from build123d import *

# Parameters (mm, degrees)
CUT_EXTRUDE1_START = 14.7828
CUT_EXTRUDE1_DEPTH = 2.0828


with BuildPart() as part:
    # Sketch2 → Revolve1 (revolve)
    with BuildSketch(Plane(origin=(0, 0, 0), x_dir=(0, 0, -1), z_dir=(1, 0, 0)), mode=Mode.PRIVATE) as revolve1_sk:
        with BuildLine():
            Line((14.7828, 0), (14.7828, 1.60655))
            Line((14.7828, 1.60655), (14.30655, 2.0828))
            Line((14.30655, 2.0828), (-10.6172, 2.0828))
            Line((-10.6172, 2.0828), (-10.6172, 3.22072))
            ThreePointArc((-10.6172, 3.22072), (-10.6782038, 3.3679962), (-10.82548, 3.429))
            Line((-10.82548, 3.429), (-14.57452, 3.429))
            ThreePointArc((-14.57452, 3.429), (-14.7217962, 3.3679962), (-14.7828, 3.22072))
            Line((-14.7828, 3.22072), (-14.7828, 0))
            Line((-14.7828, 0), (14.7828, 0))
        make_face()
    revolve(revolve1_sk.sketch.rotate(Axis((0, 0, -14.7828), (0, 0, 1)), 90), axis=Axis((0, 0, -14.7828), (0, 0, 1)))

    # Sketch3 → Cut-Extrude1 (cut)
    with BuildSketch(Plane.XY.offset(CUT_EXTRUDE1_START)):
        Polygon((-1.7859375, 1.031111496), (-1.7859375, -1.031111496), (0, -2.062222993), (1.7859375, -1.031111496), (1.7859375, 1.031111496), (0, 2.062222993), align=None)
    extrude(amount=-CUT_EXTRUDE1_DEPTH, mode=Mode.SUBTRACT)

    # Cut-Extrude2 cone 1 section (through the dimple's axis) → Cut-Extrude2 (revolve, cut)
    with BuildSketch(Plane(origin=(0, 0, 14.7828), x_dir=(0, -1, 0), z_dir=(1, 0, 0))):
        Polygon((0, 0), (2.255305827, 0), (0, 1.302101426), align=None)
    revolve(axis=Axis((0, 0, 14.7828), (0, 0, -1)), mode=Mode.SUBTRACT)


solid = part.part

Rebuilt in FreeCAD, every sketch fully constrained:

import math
import FreeCAD as App
import Part
import Sketcher
Q = App.Units.Quantity

doc = App.newDocument("Part")
body = doc.addObject("PartDesign::Body", "Body")

sketch1 = doc.addObject("Sketcher::SketchObject", "Sketch")
body.addObject(sketch1)
sketch1.AttachmentSupport = (doc.YZ_Plane, [""])
sketch1.MapMode = "FlatFace"
sketch1.addGeometry(Part.LineSegment(App.Vector(0, -14.78, 0), App.Vector(1.61, -14.78, 0)), False)
sketch1.addGeometry(Part.LineSegment(App.Vector(1.61, -14.78, 0), App.Vector(2.08, -14.31, 0)), False)
sketch1.addGeometry(Part.LineSegment(App.Vector(2.08, -14.31, 0), App.Vector(2.08, 10.62, 0)), False)
sketch1.addGeometry(Part.LineSegment(App.Vector(2.08, 10.62, 0), App.Vector(3.22, 10.62, 0)), False)
sketch1.addGeometry(Part.ArcOfCircle(Part.Circle(App.Vector(3.22, 10.83, 0), App.Vector(0, 0, 1), 0.21), math.radians(-90), math.radians(0)), False)
sketch1.addGeometry(Part.LineSegment(App.Vector(3.43, 10.83, 0), App.Vector(3.43, 14.57, 0)), False)
sketch1.addGeometry(Part.ArcOfCircle(Part.Circle(App.Vector(3.22, 14.57, 0), App.Vector(0, 0, 1), 0.21), math.radians(0), math.radians(90)), False)
sketch1.addGeometry(Part.LineSegment(App.Vector(3.22, 14.78, 0), App.Vector(0, 14.78, 0)), False)
sketch1.addGeometry(Part.LineSegment(App.Vector(0, 14.78, 0), App.Vector(0, -14.78, 0)), False)
sketch1.addConstraint(Sketcher.Constraint("Coincident", 0, 2, 1, 1))
sketch1.addConstraint(Sketcher.Constraint("Coincident", 1, 2, 2, 1))
sketch1.addConstraint(Sketcher.Constraint("Coincident", 2, 2, 3, 1))
sketch1.addConstraint(Sketcher.Constraint("Tangent", 3, 2, 4, 1))
sketch1.addConstraint(Sketcher.Constraint("Tangent", 4, 2, 5, 1))
sketch1.addConstraint(Sketcher.Constraint("Tangent", 5, 2, 6, 1))
sketch1.addConstraint(Sketcher.Constraint("Tangent", 6, 2, 7, 1))
sketch1.addConstraint(Sketcher.Constraint("Coincident", 7, 2, 8, 1))
sketch1.addConstraint(Sketcher.Constraint("Coincident", 8, 2, 0, 1))
sketch1.addConstraint(Sketcher.Constraint("Horizontal", 0))
sketch1.addConstraint(Sketcher.Constraint("Vertical", 2))
sketch1.addConstraint(Sketcher.Constraint("Horizontal", 3))
sketch1.addConstraint(Sketcher.Constraint("Vertical", 5))
sketch1.addConstraint(Sketcher.Constraint("Horizontal", 7))
sketch1.addConstraint(Sketcher.Constraint("Vertical", 8))
sketch1.addConstraint(Sketcher.Constraint("Equal", 4, 6))
sketch1.addConstraint(Sketcher.Constraint("Symmetric", 7, 2, 8, 2, -1, 1))
sketch1.addConstraint(Sketcher.Constraint("Angle", 1, Q("45 deg")))
sketch1.addConstraint(Sketcher.Constraint("DistanceY", 0, 2, 2, 2, Q("1 in")))
sketch1.addConstraint(Sketcher.Constraint("Radius", 4, Q("0.0082 in")))
sketch1.addConstraint(Sketcher.Constraint("DistanceY", 8, 2, 8, 1, Q("1.164 in")))
sketch1.addConstraint(Sketcher.Constraint("DistanceX", 3, 1, 3, 2, Q("0.0448 in")))
sketch1.addConstraint(Sketcher.Constraint("DistanceX", 7, 2, 7, 1, Q("0.1268 in")))
sketch1.addConstraint(Sketcher.Constraint("DistanceX", 0, 1, 0, 2, Q("1.60655 mm")))
revolution = doc.addObject("PartDesign::Revolution", "Revolution")
body.addObject(revolution)
revolution.Profile = sketch1
revolution.ReferenceAxis = (sketch1, ["V_Axis"])
revolution.Angle = 360

sketch2 = doc.addObject("Sketcher::SketchObject", "Sketch001")
body.addObject(sketch2)
sketch2.AttachmentSupport = (doc.XY_Plane, [""])
sketch2.MapMode = "FlatFace"
sketch2.AttachmentOffset = App.Placement(App.Vector(0, 0, 0.582 * 25.4), App.Rotation())
sketch2.addGeometry(Part.LineSegment(App.Vector(-1.8, 1, 0), App.Vector(-1.8, -1, 0)), False)
sketch2.addGeometry(Part.LineSegment(App.Vector(-1.8, -1, 0), App.Vector(0, -2.1, 0)), False)
sketch2.addGeometry(Part.LineSegment(App.Vector(0, -2.1, 0), App.Vector(1.8, -1, 0)), False)
sketch2.addGeometry(Part.LineSegment(App.Vector(1.8, -1, 0), App.Vector(1.8, 1, 0)), False)
sketch2.addGeometry(Part.LineSegment(App.Vector(1.8, 1, 0), App.Vector(0, 2.1, 0)), False)
sketch2.addGeometry(Part.LineSegment(App.Vector(0, 2.1, 0), App.Vector(-1.8, 1, 0)), False)
sketch2.addConstraint(Sketcher.Constraint("Coincident", 0, 2, 1, 1))
sketch2.addConstraint(Sketcher.Constraint("Coincident", 1, 2, 2, 1))
sketch2.addConstraint(Sketcher.Constraint("Coincident", 2, 2, 3, 1))
sketch2.addConstraint(Sketcher.Constraint("Coincident", 3, 2, 4, 1))
sketch2.addConstraint(Sketcher.Constraint("Coincident", 4, 2, 5, 1))
sketch2.addConstraint(Sketcher.Constraint("Coincident", 5, 2, 0, 1))
sketch2.addConstraint(Sketcher.Constraint("Vertical", 0))
sketch2.addConstraint(Sketcher.Constraint("Vertical", 3))
sketch2.addConstraint(Sketcher.Constraint("Symmetric", 0, 2, 3, 2, -1, 1))
sketch2.addConstraint(Sketcher.Constraint("Symmetric", 1, 2, 4, 2, -1, 1))
sketch2.addConstraint(Sketcher.Constraint("PointOnObject", 1, 2, -2))
sketch2.addConstraint(Sketcher.Constraint("Parallel", 2, 5))
sketch2.addConstraint(Sketcher.Constraint("Horizontal", 0, 2, 2, 2))
sketch2.addConstraint(Sketcher.Constraint("Angle", 1, Q("-30 deg")))
sketch2.addConstraint(Sketcher.Constraint("DistanceX", 0, 2, 2, 2, Q("0.140625 in")))
sketch2.addConstraint(Sketcher.Constraint("DistanceY", 0, 2, 0, 1, Q("2.062223 mm")))
pocket1 = doc.addObject("PartDesign::Pocket", "Pocket")
body.addObject(pocket1)
pocket1.Profile = sketch2
pocket1.Length = Q("0.082 in")

sketch3 = doc.addObject("Sketcher::SketchObject", "Sketch002")
body.addObject(sketch3)
sketch3.AttachmentSupport = (doc.YZ_Plane, [""])
sketch3.MapMode = "FlatFace"
sketch3.addGeometry(Part.LineSegment(App.Vector(0, 14.8, 0), App.Vector(-2.3, 14.8, 0)), False)
sketch3.addGeometry(Part.LineSegment(App.Vector(-2.3, 14.8, 0), App.Vector(0, 13.5, 0)), False)
sketch3.addGeometry(Part.LineSegment(App.Vector(0, 13.5, 0), App.Vector(0, 14.8, 0)), False)
sketch3.addConstraint(Sketcher.Constraint("Coincident", 0, 2, 1, 1))
sketch3.addConstraint(Sketcher.Constraint("Coincident", 1, 2, 2, 1))
sketch3.addConstraint(Sketcher.Constraint("Coincident", 2, 2, 0, 1))
sketch3.addConstraint(Sketcher.Constraint("Horizontal", 0))
sketch3.addConstraint(Sketcher.Constraint("Vertical", 2))
sketch3.addConstraint(Sketcher.Constraint("PointOnObject", 1, 2, -2))
sketch3.addConstraint(Sketcher.Constraint("Angle", 1, Q("-30 deg")))
sketch3.addConstraint(Sketcher.Constraint("DistanceY", -1, 1, 0, 2, Q("0.582 in")))
sketch3.addConstraint(Sketcher.Constraint("DistanceY", 2, 1, 2, 2, Q("1.302101 mm")))
groove = doc.addObject("PartDesign::Groove", "Groove")
body.addObject(groove)
groove.Profile = sketch3
groove.ReferenceAxis = (sketch3, ["V_Axis"])
groove.Angle = 360

doc.recompute()
